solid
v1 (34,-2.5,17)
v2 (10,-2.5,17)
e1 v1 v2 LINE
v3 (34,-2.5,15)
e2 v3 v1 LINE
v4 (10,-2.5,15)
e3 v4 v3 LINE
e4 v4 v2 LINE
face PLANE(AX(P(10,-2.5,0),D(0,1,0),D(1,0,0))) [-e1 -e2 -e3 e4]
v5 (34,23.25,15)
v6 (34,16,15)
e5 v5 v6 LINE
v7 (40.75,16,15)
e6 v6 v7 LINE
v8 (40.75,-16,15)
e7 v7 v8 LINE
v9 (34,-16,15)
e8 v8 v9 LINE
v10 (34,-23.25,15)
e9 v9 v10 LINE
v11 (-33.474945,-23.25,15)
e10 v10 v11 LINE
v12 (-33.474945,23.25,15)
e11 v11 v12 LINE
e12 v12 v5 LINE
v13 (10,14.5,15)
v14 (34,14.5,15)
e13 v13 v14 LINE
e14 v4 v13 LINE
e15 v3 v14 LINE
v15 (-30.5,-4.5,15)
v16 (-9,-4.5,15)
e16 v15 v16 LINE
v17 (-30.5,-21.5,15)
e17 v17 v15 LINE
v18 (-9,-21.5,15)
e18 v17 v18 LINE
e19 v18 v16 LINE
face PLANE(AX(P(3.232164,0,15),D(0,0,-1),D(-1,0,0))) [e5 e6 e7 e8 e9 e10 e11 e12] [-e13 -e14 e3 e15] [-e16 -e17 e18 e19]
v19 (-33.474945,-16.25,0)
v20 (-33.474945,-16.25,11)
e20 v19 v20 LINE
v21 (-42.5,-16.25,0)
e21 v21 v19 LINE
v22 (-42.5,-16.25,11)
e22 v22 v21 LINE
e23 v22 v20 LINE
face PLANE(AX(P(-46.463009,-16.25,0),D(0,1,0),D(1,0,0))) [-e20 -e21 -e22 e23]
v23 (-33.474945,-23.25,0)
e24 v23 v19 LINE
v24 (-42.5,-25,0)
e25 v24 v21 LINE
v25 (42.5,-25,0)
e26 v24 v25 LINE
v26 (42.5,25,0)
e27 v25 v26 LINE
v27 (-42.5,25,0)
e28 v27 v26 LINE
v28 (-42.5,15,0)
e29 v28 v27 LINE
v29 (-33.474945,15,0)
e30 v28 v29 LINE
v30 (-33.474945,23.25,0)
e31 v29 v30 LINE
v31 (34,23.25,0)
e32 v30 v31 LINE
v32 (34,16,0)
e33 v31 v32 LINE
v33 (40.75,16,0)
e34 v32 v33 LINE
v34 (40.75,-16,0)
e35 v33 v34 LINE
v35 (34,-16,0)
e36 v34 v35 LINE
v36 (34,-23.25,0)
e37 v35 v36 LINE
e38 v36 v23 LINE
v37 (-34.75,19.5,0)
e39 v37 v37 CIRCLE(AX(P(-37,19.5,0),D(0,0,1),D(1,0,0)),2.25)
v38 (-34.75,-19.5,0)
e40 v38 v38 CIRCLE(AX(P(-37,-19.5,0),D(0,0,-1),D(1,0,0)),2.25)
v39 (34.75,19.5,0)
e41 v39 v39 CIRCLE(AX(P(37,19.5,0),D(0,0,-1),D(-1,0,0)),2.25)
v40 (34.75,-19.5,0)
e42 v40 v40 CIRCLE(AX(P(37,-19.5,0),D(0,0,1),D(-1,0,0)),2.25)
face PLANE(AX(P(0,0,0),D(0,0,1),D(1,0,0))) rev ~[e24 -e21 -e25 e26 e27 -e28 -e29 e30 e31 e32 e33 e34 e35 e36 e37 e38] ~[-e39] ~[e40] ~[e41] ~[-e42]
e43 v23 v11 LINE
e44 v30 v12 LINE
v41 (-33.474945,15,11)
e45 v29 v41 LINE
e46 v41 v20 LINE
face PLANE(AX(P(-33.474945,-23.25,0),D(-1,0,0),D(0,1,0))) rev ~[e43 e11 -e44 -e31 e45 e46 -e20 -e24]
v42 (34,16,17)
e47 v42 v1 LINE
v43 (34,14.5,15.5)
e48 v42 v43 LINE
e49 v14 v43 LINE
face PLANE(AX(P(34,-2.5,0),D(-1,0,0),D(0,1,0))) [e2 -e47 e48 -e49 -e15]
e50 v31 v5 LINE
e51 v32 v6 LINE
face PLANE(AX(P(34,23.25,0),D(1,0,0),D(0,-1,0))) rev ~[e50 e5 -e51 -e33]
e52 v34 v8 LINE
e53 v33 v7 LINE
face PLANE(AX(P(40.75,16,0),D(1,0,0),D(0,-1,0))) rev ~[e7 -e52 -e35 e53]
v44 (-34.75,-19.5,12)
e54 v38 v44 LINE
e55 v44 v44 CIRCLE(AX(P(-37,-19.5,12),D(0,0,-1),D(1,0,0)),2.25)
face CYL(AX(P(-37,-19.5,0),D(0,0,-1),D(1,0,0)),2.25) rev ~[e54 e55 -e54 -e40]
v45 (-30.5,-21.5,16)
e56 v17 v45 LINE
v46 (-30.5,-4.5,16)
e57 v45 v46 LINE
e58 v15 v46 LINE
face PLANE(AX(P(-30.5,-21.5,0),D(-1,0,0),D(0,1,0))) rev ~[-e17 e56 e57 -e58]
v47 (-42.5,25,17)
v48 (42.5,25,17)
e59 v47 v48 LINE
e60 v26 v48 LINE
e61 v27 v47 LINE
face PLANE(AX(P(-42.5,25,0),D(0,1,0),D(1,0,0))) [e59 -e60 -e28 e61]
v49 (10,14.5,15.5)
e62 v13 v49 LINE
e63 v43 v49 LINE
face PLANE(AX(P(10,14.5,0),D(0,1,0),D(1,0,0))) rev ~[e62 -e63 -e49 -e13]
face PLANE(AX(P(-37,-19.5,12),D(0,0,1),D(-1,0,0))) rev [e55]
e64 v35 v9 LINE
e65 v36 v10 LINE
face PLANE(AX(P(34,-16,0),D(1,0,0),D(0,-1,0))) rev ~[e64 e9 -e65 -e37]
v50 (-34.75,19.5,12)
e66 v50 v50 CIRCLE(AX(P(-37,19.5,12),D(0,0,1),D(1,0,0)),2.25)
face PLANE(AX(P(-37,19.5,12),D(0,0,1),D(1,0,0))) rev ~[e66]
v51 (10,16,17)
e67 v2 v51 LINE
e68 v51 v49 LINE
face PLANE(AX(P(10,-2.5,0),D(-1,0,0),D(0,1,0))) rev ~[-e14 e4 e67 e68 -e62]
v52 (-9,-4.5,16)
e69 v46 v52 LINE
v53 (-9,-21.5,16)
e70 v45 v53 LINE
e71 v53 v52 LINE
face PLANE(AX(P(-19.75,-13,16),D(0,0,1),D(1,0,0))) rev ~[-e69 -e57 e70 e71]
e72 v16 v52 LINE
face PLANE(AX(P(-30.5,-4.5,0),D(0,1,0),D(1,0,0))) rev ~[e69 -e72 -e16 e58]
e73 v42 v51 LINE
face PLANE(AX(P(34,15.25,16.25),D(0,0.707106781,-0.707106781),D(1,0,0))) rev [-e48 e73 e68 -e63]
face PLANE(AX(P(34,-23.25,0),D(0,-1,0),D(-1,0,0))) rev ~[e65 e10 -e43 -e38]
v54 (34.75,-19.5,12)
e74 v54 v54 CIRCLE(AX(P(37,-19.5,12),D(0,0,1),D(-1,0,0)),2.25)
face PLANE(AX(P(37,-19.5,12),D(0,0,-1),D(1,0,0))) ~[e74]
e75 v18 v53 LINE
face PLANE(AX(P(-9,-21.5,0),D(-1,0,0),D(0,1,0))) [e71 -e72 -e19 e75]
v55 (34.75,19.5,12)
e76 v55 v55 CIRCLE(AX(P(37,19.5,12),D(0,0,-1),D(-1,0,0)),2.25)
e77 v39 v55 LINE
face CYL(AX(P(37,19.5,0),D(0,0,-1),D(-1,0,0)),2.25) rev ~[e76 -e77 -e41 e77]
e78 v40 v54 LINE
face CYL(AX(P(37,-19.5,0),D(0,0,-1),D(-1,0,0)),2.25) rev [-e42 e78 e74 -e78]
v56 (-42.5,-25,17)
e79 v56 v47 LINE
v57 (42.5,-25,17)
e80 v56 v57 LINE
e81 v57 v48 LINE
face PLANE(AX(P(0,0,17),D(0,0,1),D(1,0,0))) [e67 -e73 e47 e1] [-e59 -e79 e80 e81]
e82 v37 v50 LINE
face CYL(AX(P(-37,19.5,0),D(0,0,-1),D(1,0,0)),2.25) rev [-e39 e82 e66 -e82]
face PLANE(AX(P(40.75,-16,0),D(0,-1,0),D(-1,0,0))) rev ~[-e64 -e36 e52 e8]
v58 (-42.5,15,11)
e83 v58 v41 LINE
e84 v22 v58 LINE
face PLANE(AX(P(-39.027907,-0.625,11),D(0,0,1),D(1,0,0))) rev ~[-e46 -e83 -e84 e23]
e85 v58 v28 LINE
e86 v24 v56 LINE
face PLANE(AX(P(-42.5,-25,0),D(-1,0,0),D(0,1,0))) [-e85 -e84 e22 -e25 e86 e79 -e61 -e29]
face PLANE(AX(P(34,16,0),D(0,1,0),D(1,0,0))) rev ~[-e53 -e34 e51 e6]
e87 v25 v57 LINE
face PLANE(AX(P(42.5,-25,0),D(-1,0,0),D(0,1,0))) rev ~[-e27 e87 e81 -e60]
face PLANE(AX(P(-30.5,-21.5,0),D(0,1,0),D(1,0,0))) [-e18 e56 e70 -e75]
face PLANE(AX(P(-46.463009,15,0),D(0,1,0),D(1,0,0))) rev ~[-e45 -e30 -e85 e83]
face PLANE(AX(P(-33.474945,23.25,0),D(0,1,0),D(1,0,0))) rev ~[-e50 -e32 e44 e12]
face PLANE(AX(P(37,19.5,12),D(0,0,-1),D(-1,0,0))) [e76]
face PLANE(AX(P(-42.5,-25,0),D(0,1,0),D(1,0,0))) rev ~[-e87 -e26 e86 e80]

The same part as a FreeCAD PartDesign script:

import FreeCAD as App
import Part
import Sketcher

V = App.Vector


def edges_at(feature, points):
    """Names of the edges that pass closest to the given points."""
    edges = feature.Shape.Edges
    near = lambda p: min(range(len(edges)), key=lambda i: edges[i].distToShape(Part.Vertex(*p))[0])
    return sorted({f"Edge{near(p) + 1}" for p in points})

doc = App.newDocument("Part")
body = doc.addObject("PartDesign::Body", "Body")

sketch1 = body.newObject("Sketcher::SketchObject", "Sketch")
sketch1.AttachmentSupport = (doc.getObject("XY_Plane"), [""])
sketch1.MapMode = "FlatFace"
sketch1.addGeometry([
    Part.LineSegment(V(-42.5, 25, 0), V(-42.5, -25, 0)),
    Part.LineSegment(V(-42.5, -25, 0), V(42.5, -25, 0)),
    Part.LineSegment(V(42.5, -25, 0), V(42.5, 25, 0)),
    Part.LineSegment(V(42.5, 25, 0), V(-42.5, 25, 0)),
], False)
sketch1.addConstraint([
    Sketcher.Constraint("Coincident", 0, 2, 1, 1),
    Sketcher.Constraint("Coincident", 1, 2, 2, 1),
    Sketcher.Constraint("Coincident", 2, 2, 3, 1),
    Sketcher.Constraint("Coincident", 3, 2, 0, 1),
    Sketcher.Constraint("Vertical", 0),
    Sketcher.Constraint("Horizontal", 1),
    Sketcher.Constraint("Vertical", 2),
    Sketcher.Constraint("Horizontal", 3),
    Sketcher.Constraint("Symmetric", 0, 2, 2, 2, -1, 1),
    Sketcher.Constraint("DistanceX", 1, 1, 1, 2, 85.0),
    Sketcher.Constraint("DistanceY", 0, 2, 0, 1, 50.0),
])
pad1 = body.newObject("PartDesign::Pad", "Pad")
pad1.Profile = sketch1
pad1.Length = 17

sketch2 = body.newObject("Sketcher::SketchObject", "Sketch001")
sketch2.AttachmentSupport = (doc.getObject("XY_Plane"), [""])
sketch2.MapMode = "FlatFace"
sketch2.addGeometry([
    Part.LineSegment(V(-46.463009, 15, 0), V(-46.463009, -16.25, 0)),
    Part.LineSegment(V(-46.463009, -16.25, 0), V(-31.592804, -16.25, 0)),
    Part.LineSegment(V(-31.592804, -16.25, 0), V(-31.592804, 15, 0)),
    Part.LineSegment(V(-31.592804, 15, 0), V(-46.463009, 15, 0)),
], False)
sketch2.addConstraint([
    Sketcher.Constraint("Coincident", 0, 2, 1, 1),
    Sketcher.Constraint("Coincident", 1, 2, 2, 1),
    Sketcher.Constraint("Coincident", 2, 2, 3, 1),
    Sketcher.Constraint("Coincident", 3, 2, 0, 1),
    Sketcher.Constraint("Vertical", 0),
    Sketcher.Constraint("Horizontal", 1),
    Sketcher.Constraint("Vertical", 2),
    Sketcher.Constraint("Horizontal", 3),
    Sketcher.Constraint("DistanceY", -1, 1, 2, 2, 15.0),
    Sketcher.Constraint("DistanceY", 0, 2, 0, 1, 31.25),
    Sketcher.Constraint("DistanceX", 1, 1, 1, 2, 14.870205),
    Sketcher.Constraint("DistanceX", 0, 2, -1, 1, 46.463009),
])
pocket1 = body.newObject("PartDesign::Pocket", "Pocket")
pocket1.Profile = sketch2
pocket1.Length = 11
pocket1.Reversed = True

sketch3 = body.newObject("Sketcher::SketchObject", "Sketch002")
sketch3.AttachmentSupport = (doc.getObject("XY_Plane"), [""])
sketch3.MapMode = "FlatFace"
sketch3.addGeometry([
    Part.LineSegment(V(34, 23.25, 0), V(-33.474945, 23.25, 0)),
    Part.LineSegment(V(-33.474945, 23.25, 0), V(-33.474945, -23.25, 0)),
    Part.LineSegment(V(-33.474945, -23.25, 0), V(34, -23.25, 0)),
    Part.LineSegment(V(34, -23.25, 0), V(34, -16, 0)),
    Part.LineSegment(V(34, -16, 0), V(40.75, -16, 0)),
    Part.LineSegment(V(40.75, -16, 0), V(40.75, 16, 0)),
    Part.LineSegment(V(40.75, 16, 0), V(34, 16, 0)),
    Part.LineSegment(V(34, 16, 0), V(34, 23.25, 0)),
], False)
sketch3.addConstraint([
    Sketcher.Constraint("Coincident", 0, 2, 1, 1),
    Sketcher.Constraint("Coincident", 1, 2, 2, 1),
    Sketcher.Constraint("Coincident", 2, 2, 3, 1),
    Sketcher.Constraint("Coincident", 3, 2, 4, 1),
    Sketcher.Constraint("Coincident", 4, 2, 5, 1),
    Sketcher.Constraint("Coincident", 5, 2, 6, 1),
    Sketcher.Constraint("Coincident", 6, 2, 7, 1),
    Sketcher.Constraint("Coincident", 7, 2, 0, 1),
    Sketcher.Constraint("Horizontal", 0),
    Sketcher.Constraint("Vertical", 1),
    Sketcher.Constraint("Horizontal", 2),
    Sketcher.Constraint("Vertical", 3),
    Sketcher.Constraint("Horizontal", 4),
    Sketcher.Constraint("Vertical", 5),
    Sketcher.Constraint("Horizontal", 6),
    Sketcher.Constraint("Vertical", 7),
    Sketcher.Constraint("Symmetric", 3, 2, 6, 2, -1),
    Sketcher.Constraint("Equal", 3, 7),
    Sketcher.Constraint("DistanceY", 5, 1, 5, 2, 32.0),
    Sketcher.Constraint("DistanceY", 1, 2, 1, 1, 46.5),
    Sketcher.Constraint("DistanceX", -1, 1, 2, 2, 34.0),
    Sketcher.Constraint("DistanceX", 4, 1, 4, 2, 6.75),
    Sketcher.Constraint("DistanceX", 0, 2, 0, 1, 67.474945),
])
pocket2 = body.newObject("PartDesign::Pocket", "Pocket001")
pocket2.Profile = sketch3
pocket2.Length = 15
pocket2.Reversed = True

sketch4 = body.newObject("Sketcher::SketchObject", "Sketch003")
sketch4.AttachmentSupport = (doc.getObject("XY_Plane"), [""])
sketch4.MapMode = "FlatFace"
sketch4.addGeometry([
    Part.LineSegment(V(-30.5, -4.5, 0), V(-30.5, -21.5, 0)),
    Part.LineSegment(V(-30.5, -21.5, 0), V(-9, -21.5, 0)),
    Part.LineSegment(V(-9, -21.5, 0), V(-9, -4.5, 0)),
    Part.LineSegment(V(-9, -4.5, 0), V(-30.5, -4.5, 0)),
], False)
sketch4.addConstraint([
    Sketcher.Constraint("Coincident", 0, 2, 1, 1),
    Sketcher.Constraint("Coincident", 1, 2, 2, 1),
    Sketcher.Constraint("Coincident", 2, 2, 3, 1),
    Sketcher.Constraint("Coincident", 3, 2, 0, 1),
    Sketcher.Constraint("Vertical", 0),
    Sketcher.Constraint("Horizontal", 1),
    Sketcher.Constraint("Vertical", 2),
    Sketcher.Constraint("Horizontal", 3),
    Sketcher.Constraint("DistanceY", 0, 2, 0, 1, 17.0),
    Sketcher.Constraint("DistanceX", 1, 1, 1, 2, 21.5),
    Sketcher.Constraint("DistanceX", 1, 2, -1, 1, 9.0),
    Sketcher.Constraint("DistanceY", 0, 2, -1, 1, 21.5),
])
pocket3 = body.newObject("PartDesign::Pocket", "Pocket002")
pocket3.Profile = sketch4
pocket3.Length = 16
pocket3.Reversed = True

sketch5 = body.newObject("Sketcher::SketchObject", "Sketch004")
sketch5.AttachmentSupport = (doc.getObject("XY_Plane"), [""])
sketch5.MapMode = "FlatFace"
sketch5.addGeometry(Part.Circle(V(-37, 19.5, 0), V(0, 0, 1), 2.25), False)
sketch5.addConstraint([
    Sketcher.Constraint("Diameter", 0, 4.5),
    Sketcher.Constraint("DistanceX", 0, 3, -1, 1, 37.0),
    Sketcher.Constraint("DistanceY", -1, 1, 0, 3, 19.5),
])
pocket4 = body.newObject("PartDesign::Pocket", "Pocket003")
pocket4.Profile = sketch5
pocket4.Length = 12
pocket4.Reversed = True

sketch6 = body.newObject("Sketcher::SketchObject", "Sketch005")
sketch6.AttachmentSupport = (doc.getObject("XY_Plane"), [""])
sketch6.MapMode = "FlatFace"
sketch6.addGeometry(Part.Circle(V(37, 19.5, 0), V(0, 0, 1), 2.25), False)
sketch6.addConstraint([
    Sketcher.Constraint("Diameter", 0, 4.5),
    Sketcher.Constraint("DistanceX", -1, 1, 0, 3, 37.0),
    Sketcher.Constraint("DistanceY", -1, 1, 0, 3, 19.5),
])
pocket5 = body.newObject("PartDesign::Pocket", "Pocket004")
pocket5.Profile = sketch6
pocket5.Length = 12
pocket5.Reversed = True
doc.recompute()

mirrored = body.newObject("PartDesign::Mirrored", "Mirrored")
mirrored.Originals = [pocket4, pocket5]
mirrored.MirrorPlane = (doc.getObject("XZ_Plane"), [""])
body.Tip = mirrored

sketch7 = body.newObject("Sketcher::SketchObject", "Sketch006")
sketch7.AttachmentSupport = (doc.getObject("XY_Plane"), [""])
sketch7.MapMode = "FlatFace"
sketch7.addGeometry([
    Part.LineSegment(V(10, 14.5, 0), V(10, -2.5, 0)),
    Part.LineSegment(V(10, -2.5, 0), V(34, -2.5, 0)),
    Part.LineSegment(V(34, -2.5, 0), V(34, 14.5, 0)),
    Part.LineSegment(V(34, 14.5, 0), V(10, 14.5, 0)),
], False)
sketch7.addConstraint([
    Sketcher.Constraint("Coincident", 0, 2, 1, 1),
    Sketcher.Constraint("Coincident", 1, 2, 2, 1),
    Sketcher.Constraint("Coincident", 2, 2, 3, 1),
    Sketcher.Constraint("Coincident", 3, 2, 0, 1),
    Sketcher.Constraint("Vertical", 0),
    Sketcher.Constraint("Horizontal", 1),
    Sketcher.Constraint("Vertical", 2),
    Sketcher.Constraint("Horizontal", 3),
    Sketcher.Constraint("DistanceX", 1, 1, 1, 2, 24.0),
    Sketcher.Constraint("DistanceY", 0, 2, 0, 1, 17.0),
    Sketcher.Constraint("DistanceX", -1, 1, 0, 2, 10.0),
    Sketcher.Constraint("DistanceY", 0, 2, -1, 1, 2.5),
])
pocket6 = body.newObject("PartDesign::Pocket", "Pocket005")
pocket6.Profile = sketch7
pocket6.Type = "ThroughAll"
pocket6.Reversed = True
doc.recompute()

chamfer = body.newObject("PartDesign::Chamfer", "Chamfer")
chamfer.Base = (pocket6, edges_at(pocket6, [(22, 14.5, 17)]))
chamfer.Size = 1.5

doc.recompute()
